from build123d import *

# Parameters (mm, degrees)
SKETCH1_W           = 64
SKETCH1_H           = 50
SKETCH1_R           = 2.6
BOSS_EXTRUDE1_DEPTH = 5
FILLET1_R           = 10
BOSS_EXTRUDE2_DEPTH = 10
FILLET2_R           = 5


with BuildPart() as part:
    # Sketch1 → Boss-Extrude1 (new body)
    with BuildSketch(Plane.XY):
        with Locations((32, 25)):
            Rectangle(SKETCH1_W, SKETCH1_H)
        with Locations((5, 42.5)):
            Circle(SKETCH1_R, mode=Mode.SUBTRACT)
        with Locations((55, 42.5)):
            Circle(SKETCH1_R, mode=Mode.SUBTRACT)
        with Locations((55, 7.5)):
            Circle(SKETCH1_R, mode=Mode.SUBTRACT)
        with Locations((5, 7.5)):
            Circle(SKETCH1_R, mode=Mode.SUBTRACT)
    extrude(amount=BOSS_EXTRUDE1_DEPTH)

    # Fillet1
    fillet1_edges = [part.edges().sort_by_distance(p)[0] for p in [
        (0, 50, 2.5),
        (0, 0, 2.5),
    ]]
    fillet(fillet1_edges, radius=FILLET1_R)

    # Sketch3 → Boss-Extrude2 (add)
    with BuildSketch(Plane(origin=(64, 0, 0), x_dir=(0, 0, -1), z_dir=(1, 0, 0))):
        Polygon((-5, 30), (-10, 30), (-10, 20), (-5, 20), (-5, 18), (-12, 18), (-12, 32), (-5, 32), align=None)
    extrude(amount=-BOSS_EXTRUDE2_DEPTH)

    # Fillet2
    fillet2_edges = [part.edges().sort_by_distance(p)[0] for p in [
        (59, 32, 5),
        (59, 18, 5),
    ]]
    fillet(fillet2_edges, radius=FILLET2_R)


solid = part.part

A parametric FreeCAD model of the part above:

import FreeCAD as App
import Part
import Sketcher
from FreeCAD import Vector


def edges_at(feature, points):
    """Names of the edges that pass closest to the given points."""
    edges = feature.Shape.Edges
    near = lambda p: min(range(len(edges)), key=lambda i: edges[i].distToShape(Part.Vertex(*p))[0])
    return sorted({f"Edge{near(p) + 1}" for p in points})

doc = App.newDocument("Part")
body = doc.addObject("PartDesign::Body", "Body")

sketch1 = body.newObject("Sketcher::SketchObject", "Sketch")
sketch1.AttachmentSupport = (doc.getObject("XY_Plane"), [""])
sketch1.MapMode = "FlatFace"
sketch1.addGeometry(Part.LineSegment(Vector(0, 50, 0), Vector(0, 0, 0)), False)
sketch1.addGeometry(Part.LineSegment(Vector(0, 0, 0), Vector(64, 0, 0)), False)
sketch1.addGeometry(Part.LineSegment(Vector(64, 0, 0), Vector(64, 50, 0)), False)
sketch1.addGeometry(Part.LineSegment(Vector(64, 50, 0), Vector(0, 50, 0)), False)
sketch1.addGeometry(Part.Circle(Vector(5, 7.5, 0), Vector(0, 0, 1), 2.6), False)
sketch1.addGeometry(Part.Circle(Vector(55, 7.5, 0), Vector(0, 0, 1), 2.6), False)
sketch1.addGeometry(Part.Circle(Vector(5, 42.5, 0), Vector(0, 0, 1), 2.6), False)
sketch1.addGeometry(Part.Circle(Vector(55, 42.5, 0), Vector(0, 0, 1), 2.6), False)
sketch1.addConstraint(Sketcher.Constraint("Coincident", 0, 2, 1, 1))
sketch1.addConstraint(Sketcher.Constraint("Coincident", 1, 2, 2, 1))
sketch1.addConstraint(Sketcher.Constraint("Coincident", 2, 2, 3, 1))
sketch1.addConstraint(Sketcher.Constraint("Coincident", 3, 2, 0, 1))
sketch1.addConstraint(Sketcher.Constraint("Vertical", 0))
sketch1.addConstraint(Sketcher.Constraint("Horizontal", 1))
sketch1.addConstraint(Sketcher.Constraint("Vertical", 2))
sketch1.addConstraint(Sketcher.Constraint("Horizontal", 3))
sketch1.addConstraint(Sketcher.Constraint("Coincident", 0, 2, -1, 1))
sketch1.addConstraint(Sketcher.Constraint("Equal", 4, 5))
sketch1.addConstraint(Sketcher.Constraint("Equal", 5, 6))
sketch1.addConstraint(Sketcher.Constraint("Equal", 6, 7))
sketch1.addConstraint(Sketcher.Constraint("Horizontal", 4, 3, 5, 3))
sketch1.addConstraint(Sketcher.Constraint("Horizontal", 6, 3, 7, 3))
sketch1.addConstraint(Sketcher.Constraint("Vertical", 4, 3, 6, 3))
sketch1.addConstraint(Sketcher.Constraint("Vertical", 5, 3, 7, 3))
sketch1.addConstraint(Sketcher.Constraint("Diameter", 4, 5.2))
sketch1.addConstraint(Sketcher.Constraint("DistanceX", 1, 1, 1, 2, 64.0))
sketch1.addConstraint(Sketcher.Constraint("DistanceY", 0, 2, 0, 1, 50.0))
sketch1.addConstraint(Sketcher.Constraint("DistanceX", -1, 1, 4, 3, 5.0))
sketch1.addConstraint(Sketcher.Constraint("DistanceX", -1, 1, 5, 3, 55.0))
sketch1.addConstraint(Sketcher.Constraint("DistanceY", 4, 3, 6, 3, 35.0))
sketch1.addConstraint(Sketcher.Constraint("DistanceY", -1, 1, 4, 3, 7.5))
pad1 = body.newObject("PartDesign::Pad", "Pad")
pad1.Profile = sketch1
pad1.Length = 5
doc.recompute()

fillet = body.newObject("PartDesign::Fillet", "Fillet")
fillet.Base = (pad1, edges_at(pad1, [(0, 50, 2.5), (0, 0, 2.5)]))
fillet.Radius = 10

sketch2 = body.newObject("Sketcher::SketchObject", "Sketch001")
sketch2.AttachmentSupport = (doc.getObject("YZ_Plane"), [""])
sketch2.MapMode = "FlatFace"
sketch2.AttachmentOffset = App.Placement(Vector(0, 0, 64), App.Rotation())
sketch2.addGeometry(Part.LineSegment(Vector(30, 10, 0), Vector(30, 5, 0)), False)
sketch2.addGeometry(Part.LineSegment(Vector(30, 5, 0), Vector(32, 5, 0)), False)
sketch2.addGeometry(Part.LineSegment(Vector(32, 5, 0), Vector(32, 12, 0)), False)
sketch2.addGeometry(Part.LineSegment(Vector(32, 12, 0), Vector(18, 12, 0)), False)
sketch2.addGeometry(Part.LineSegment(Vector(18, 12, 0), Vector(18, 5, 0)), False)
sketch2.addGeometry(Part.LineSegment(Vector(18, 5, 0), Vector(20, 5, 0)), False)
sketch2.addGeometry(Part.LineSegment(Vector(20, 5, 0), Vector(20, 10, 0)), False)
sketch2.addGeometry(Part.LineSegment(Vector(20, 10, 0), Vector(30, 10, 0)), False)
sketch2.addConstraint(Sketcher.Constraint("Coincident", 0, 2, 1, 1))
sketch2.addConstraint(Sketcher.Constraint("Coincident", 1, 2, 2, 1))
sketch2.addConstraint(Sketcher.Constraint("Coincident", 2, 2, 3, 1))
sketch2.addConstraint(Sketcher.Constraint("Coincident", 3, 2, 4, 1))
sketch2.addConstraint(Sketcher.Constraint("Coincident", 4, 2, 5, 1))
sketch2.addConstraint(Sketcher.Constraint("Coincident", 5, 2, 6, 1))
sketch2.addConstraint(Sketcher.Constraint("Coincident", 6, 2, 7, 1))
sketch2.addConstraint(Sketcher.Constraint("Coincident", 7, 2, 0, 1))
sketch2.addConstraint(Sketcher.Constraint("Vertical", 0))
sketch2.addConstraint(Sketcher.Constraint("Horizontal", 1))
sketch2.addConstraint(Sketcher.Constraint("Vertical", 2))
sketch2.addConstraint(Sketcher.Constraint("Horizontal", 3))
sketch2.addConstraint(Sketcher.Constraint("Vertical", 4))
sketch2.addConstraint(Sketcher.Constraint("Horizontal", 5))
sketch2.addConstraint(Sketcher.Constraint("Vertical", 6))
sketch2.addConstraint(Sketcher.Constraint("Horizontal", 7))
sketch2.addConstraint(Sketcher.Constraint("Horizontal", 1, 2, 4, 2))
sketch2.addConstraint(Sketcher.Constraint("Equal", 1, 5))
sketch2.addConstraint(Sketcher.Constraint("DistanceX", 1, 1, 1, 2, 2.0))
sketch2.addConstraint(Sketcher.Constraint("DistanceX", 3, 2, 3, 1, 14.0))
sketch2.addConstraint(Sketcher.Constraint("DistanceY", 0, 2, 0, 1, 5.0))
sketch2.addConstraint(Sketcher.Constraint("DistanceY", 2, 1, 2, 2, 7.0))
sketch2.addConstraint(Sketcher.Constraint("DistanceX", -1, 1, 0, 2, 30.0))
sketch2.addConstraint(Sketcher.Constraint("DistanceY", -1, 1, 0, 2, 5.0))
pad2 = body.newObject("PartDesign::Pad", "Pad001")
pad2.Profile = sketch2
pad2.Length = 10
pad2.Reversed = True
doc.recompute()

fillet2 = body.newObject("PartDesign::Fillet", "Fillet001")
fillet2.Base = (pad2, edges_at(pad2, [(59, 32, 5), (59, 18, 5)]))
fillet2.Radius = 5

doc.recompute()
